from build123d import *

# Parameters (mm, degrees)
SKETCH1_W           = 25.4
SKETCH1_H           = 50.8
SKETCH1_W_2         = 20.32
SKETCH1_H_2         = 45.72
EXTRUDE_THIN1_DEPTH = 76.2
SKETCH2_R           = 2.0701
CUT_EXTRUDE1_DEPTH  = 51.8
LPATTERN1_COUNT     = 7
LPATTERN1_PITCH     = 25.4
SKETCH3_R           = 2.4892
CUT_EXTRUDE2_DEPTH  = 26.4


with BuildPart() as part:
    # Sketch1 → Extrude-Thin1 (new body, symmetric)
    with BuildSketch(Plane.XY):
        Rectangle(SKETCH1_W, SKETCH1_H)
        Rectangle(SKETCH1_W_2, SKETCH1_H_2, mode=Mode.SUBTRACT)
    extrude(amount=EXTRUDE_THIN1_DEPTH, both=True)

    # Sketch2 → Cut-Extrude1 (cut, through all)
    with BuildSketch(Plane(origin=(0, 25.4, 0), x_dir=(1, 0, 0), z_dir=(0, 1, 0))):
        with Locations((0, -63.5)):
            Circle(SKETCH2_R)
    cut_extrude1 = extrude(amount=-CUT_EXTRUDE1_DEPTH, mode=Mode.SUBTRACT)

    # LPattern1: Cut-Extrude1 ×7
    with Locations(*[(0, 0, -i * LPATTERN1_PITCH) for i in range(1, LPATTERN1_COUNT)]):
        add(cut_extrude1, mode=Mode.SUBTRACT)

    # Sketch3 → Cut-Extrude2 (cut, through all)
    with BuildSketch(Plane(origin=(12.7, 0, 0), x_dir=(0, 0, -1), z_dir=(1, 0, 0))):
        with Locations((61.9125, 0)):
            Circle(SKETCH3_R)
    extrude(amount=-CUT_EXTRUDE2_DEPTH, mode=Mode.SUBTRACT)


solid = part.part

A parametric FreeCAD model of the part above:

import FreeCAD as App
import Part
import Sketcher

V = App.Vector
Q = App.Units.Quantity

doc = App.newDocument("Part")
body = doc.addObject("PartDesign::Body", "Body")

sketch1 = body.newObject("Sketcher::SketchObject", "Sketch")
sketch1.AttachmentSupport = (doc.getObject("XY_Plane"), [""])
sketch1.MapMode = "FlatFace"
sketch1.addGeometry([
    Part.LineSegment(V(-12.7, 25.4, 0), V(-12.7, -25.4, 0)),
    Part.LineSegment(V(-12.7, -25.4, 0), V(12.7, -25.4, 0)),
    Part.LineSegment(V(12.7, -25.4, 0), V(12.7, 25.4, 0)),
    Part.LineSegment(V(12.7, 25.4, 0), V(-12.7, 25.4, 0)),
    Part.LineSegment(V(10.16, -22.86, 0), V(-10.16, -22.86, 0)),
    Part.LineSegment(V(-10.16, -22.86, 0), V(-10.16, 22.86, 0)),
    Part.LineSegment(V(-10.16, 22.86, 0), V(10.16, 22.86, 0)),
    Part.LineSegment(V(10.16, 22.86, 0), V(10.16, -22.86, 0)),
], False)
sketch1.addConstraint([
    Sketcher.Constraint("Coincident", 0, 2, 1, 1),
    Sketcher.Constraint("Coincident", 1, 2, 2, 1),
    Sketcher.Constraint("Coincident", 2, 2, 3, 1),
    Sketcher.Constraint("Coincident", 3, 2, 0, 1),
    Sketcher.Constraint("Coincident", 4, 2, 5, 1),
    Sketcher.Constraint("Coincident", 5, 2, 6, 1),
    Sketcher.Constraint("Coincident", 6, 2, 7, 1),
    Sketcher.Constraint("Coincident", 7, 2, 4, 1),
    Sketcher.Constraint("Vertical", 0),
    Sketcher.Constraint("Horizontal", 1),
    Sketcher.Constraint("Vertical", 2),
    Sketcher.Constraint("Horizontal", 3),
    Sketcher.Constraint("Horizontal", 4),
    Sketcher.Constraint("Vertical", 5),
    Sketcher.Constraint("Horizontal", 6),
    Sketcher.Constraint("Vertical", 7),
    Sketcher.Constraint("Symmetric", 0, 2, 2, 2, -1, 1),
    Sketcher.Constraint("Symmetric", 4, 2, 6, 2, -1, 1),
    Sketcher.Constraint("DistanceX", 1, 1, 1, 2, Q("1 in")),
    Sketcher.Constraint("DistanceY", 0, 2, 0, 1, Q("2 in")),
    Sketcher.Constraint("DistanceX", 4, 2, 4, 1, Q("0.8 in")),
    Sketcher.Constraint("DistanceY", 5, 1, 5, 2, Q("1.8 in")),
])
pad1 = body.newObject("PartDesign::Pad", "Pad")
pad1.Profile = sketch1
pad1.Length = Q("6 in")
pad1.Midplane = True

sketch2 = body.newObject("Sketcher::SketchObject", "Sketch001")
sketch2.AttachmentSupport = (doc.getObject("XZ_Plane"), [""])
sketch2.MapMode = "FlatFace"
sketch2.AttachmentOffset = App.Placement(V(0, 0, -1 * 25.4), App.Rotation())
sketch2.addGeometry(Part.Circle(V(0, 63.5, 0), V(0, 0, 1), 2.0701), False)
sketch2.addConstraint([
    Sketcher.Constraint("PointOnObject", 0, 3, -2),
    Sketcher.Constraint("Diameter", 0, Q("0.163 in")),
    Sketcher.Constraint("DistanceY", -1, 1, 0, 3, Q("2.5 in")),
])
pocket1 = body.newObject("PartDesign::Pocket", "Pocket")
pocket1.Profile = sketch2
pocket1.Type = "ThroughAll"
pocket1.Reversed = True
doc.recompute()

linearpattern = body.newObject("PartDesign::LinearPattern", "LinearPattern")
linearpattern.Originals = [pocket1]
linearpattern.Direction = (doc.getObject("Z_Axis"), [""])
linearpattern.Mode = "offset"
linearpattern.Offset = Q("1 in")
linearpattern.Occurrences = 7
linearpattern.Reversed = True
body.Tip = linearpattern

sketch3 = body.newObject("Sketcher::SketchObject", "Sketch002")
sketch3.AttachmentSupport = (doc.getObject("YZ_Plane"), [""])
sketch3.MapMode = "FlatFace"
sketch3.AttachmentOffset = App.Placement(V(0, 0, 0.5 * 25.4), App.Rotation())
sketch3.addGeometry(Part.Circle(V(0, -61.9125, 0), V(0, 0, 1), 2.4892), False)
sketch3.addConstraint([
    Sketcher.Constraint("PointOnObject", 0, 3, -2),
    Sketcher.Constraint("Diameter", 0, Q("0.196 in")),
    Sketcher.Constraint("DistanceY", 0, 3, -1, 1, Q("2.4375 in")),
])
pocket2 = body.newObject("PartDesign::Pocket", "Pocket001")
pocket2.Profile = sketch3
pocket2.Type = "ThroughAll"

doc.recompute()
